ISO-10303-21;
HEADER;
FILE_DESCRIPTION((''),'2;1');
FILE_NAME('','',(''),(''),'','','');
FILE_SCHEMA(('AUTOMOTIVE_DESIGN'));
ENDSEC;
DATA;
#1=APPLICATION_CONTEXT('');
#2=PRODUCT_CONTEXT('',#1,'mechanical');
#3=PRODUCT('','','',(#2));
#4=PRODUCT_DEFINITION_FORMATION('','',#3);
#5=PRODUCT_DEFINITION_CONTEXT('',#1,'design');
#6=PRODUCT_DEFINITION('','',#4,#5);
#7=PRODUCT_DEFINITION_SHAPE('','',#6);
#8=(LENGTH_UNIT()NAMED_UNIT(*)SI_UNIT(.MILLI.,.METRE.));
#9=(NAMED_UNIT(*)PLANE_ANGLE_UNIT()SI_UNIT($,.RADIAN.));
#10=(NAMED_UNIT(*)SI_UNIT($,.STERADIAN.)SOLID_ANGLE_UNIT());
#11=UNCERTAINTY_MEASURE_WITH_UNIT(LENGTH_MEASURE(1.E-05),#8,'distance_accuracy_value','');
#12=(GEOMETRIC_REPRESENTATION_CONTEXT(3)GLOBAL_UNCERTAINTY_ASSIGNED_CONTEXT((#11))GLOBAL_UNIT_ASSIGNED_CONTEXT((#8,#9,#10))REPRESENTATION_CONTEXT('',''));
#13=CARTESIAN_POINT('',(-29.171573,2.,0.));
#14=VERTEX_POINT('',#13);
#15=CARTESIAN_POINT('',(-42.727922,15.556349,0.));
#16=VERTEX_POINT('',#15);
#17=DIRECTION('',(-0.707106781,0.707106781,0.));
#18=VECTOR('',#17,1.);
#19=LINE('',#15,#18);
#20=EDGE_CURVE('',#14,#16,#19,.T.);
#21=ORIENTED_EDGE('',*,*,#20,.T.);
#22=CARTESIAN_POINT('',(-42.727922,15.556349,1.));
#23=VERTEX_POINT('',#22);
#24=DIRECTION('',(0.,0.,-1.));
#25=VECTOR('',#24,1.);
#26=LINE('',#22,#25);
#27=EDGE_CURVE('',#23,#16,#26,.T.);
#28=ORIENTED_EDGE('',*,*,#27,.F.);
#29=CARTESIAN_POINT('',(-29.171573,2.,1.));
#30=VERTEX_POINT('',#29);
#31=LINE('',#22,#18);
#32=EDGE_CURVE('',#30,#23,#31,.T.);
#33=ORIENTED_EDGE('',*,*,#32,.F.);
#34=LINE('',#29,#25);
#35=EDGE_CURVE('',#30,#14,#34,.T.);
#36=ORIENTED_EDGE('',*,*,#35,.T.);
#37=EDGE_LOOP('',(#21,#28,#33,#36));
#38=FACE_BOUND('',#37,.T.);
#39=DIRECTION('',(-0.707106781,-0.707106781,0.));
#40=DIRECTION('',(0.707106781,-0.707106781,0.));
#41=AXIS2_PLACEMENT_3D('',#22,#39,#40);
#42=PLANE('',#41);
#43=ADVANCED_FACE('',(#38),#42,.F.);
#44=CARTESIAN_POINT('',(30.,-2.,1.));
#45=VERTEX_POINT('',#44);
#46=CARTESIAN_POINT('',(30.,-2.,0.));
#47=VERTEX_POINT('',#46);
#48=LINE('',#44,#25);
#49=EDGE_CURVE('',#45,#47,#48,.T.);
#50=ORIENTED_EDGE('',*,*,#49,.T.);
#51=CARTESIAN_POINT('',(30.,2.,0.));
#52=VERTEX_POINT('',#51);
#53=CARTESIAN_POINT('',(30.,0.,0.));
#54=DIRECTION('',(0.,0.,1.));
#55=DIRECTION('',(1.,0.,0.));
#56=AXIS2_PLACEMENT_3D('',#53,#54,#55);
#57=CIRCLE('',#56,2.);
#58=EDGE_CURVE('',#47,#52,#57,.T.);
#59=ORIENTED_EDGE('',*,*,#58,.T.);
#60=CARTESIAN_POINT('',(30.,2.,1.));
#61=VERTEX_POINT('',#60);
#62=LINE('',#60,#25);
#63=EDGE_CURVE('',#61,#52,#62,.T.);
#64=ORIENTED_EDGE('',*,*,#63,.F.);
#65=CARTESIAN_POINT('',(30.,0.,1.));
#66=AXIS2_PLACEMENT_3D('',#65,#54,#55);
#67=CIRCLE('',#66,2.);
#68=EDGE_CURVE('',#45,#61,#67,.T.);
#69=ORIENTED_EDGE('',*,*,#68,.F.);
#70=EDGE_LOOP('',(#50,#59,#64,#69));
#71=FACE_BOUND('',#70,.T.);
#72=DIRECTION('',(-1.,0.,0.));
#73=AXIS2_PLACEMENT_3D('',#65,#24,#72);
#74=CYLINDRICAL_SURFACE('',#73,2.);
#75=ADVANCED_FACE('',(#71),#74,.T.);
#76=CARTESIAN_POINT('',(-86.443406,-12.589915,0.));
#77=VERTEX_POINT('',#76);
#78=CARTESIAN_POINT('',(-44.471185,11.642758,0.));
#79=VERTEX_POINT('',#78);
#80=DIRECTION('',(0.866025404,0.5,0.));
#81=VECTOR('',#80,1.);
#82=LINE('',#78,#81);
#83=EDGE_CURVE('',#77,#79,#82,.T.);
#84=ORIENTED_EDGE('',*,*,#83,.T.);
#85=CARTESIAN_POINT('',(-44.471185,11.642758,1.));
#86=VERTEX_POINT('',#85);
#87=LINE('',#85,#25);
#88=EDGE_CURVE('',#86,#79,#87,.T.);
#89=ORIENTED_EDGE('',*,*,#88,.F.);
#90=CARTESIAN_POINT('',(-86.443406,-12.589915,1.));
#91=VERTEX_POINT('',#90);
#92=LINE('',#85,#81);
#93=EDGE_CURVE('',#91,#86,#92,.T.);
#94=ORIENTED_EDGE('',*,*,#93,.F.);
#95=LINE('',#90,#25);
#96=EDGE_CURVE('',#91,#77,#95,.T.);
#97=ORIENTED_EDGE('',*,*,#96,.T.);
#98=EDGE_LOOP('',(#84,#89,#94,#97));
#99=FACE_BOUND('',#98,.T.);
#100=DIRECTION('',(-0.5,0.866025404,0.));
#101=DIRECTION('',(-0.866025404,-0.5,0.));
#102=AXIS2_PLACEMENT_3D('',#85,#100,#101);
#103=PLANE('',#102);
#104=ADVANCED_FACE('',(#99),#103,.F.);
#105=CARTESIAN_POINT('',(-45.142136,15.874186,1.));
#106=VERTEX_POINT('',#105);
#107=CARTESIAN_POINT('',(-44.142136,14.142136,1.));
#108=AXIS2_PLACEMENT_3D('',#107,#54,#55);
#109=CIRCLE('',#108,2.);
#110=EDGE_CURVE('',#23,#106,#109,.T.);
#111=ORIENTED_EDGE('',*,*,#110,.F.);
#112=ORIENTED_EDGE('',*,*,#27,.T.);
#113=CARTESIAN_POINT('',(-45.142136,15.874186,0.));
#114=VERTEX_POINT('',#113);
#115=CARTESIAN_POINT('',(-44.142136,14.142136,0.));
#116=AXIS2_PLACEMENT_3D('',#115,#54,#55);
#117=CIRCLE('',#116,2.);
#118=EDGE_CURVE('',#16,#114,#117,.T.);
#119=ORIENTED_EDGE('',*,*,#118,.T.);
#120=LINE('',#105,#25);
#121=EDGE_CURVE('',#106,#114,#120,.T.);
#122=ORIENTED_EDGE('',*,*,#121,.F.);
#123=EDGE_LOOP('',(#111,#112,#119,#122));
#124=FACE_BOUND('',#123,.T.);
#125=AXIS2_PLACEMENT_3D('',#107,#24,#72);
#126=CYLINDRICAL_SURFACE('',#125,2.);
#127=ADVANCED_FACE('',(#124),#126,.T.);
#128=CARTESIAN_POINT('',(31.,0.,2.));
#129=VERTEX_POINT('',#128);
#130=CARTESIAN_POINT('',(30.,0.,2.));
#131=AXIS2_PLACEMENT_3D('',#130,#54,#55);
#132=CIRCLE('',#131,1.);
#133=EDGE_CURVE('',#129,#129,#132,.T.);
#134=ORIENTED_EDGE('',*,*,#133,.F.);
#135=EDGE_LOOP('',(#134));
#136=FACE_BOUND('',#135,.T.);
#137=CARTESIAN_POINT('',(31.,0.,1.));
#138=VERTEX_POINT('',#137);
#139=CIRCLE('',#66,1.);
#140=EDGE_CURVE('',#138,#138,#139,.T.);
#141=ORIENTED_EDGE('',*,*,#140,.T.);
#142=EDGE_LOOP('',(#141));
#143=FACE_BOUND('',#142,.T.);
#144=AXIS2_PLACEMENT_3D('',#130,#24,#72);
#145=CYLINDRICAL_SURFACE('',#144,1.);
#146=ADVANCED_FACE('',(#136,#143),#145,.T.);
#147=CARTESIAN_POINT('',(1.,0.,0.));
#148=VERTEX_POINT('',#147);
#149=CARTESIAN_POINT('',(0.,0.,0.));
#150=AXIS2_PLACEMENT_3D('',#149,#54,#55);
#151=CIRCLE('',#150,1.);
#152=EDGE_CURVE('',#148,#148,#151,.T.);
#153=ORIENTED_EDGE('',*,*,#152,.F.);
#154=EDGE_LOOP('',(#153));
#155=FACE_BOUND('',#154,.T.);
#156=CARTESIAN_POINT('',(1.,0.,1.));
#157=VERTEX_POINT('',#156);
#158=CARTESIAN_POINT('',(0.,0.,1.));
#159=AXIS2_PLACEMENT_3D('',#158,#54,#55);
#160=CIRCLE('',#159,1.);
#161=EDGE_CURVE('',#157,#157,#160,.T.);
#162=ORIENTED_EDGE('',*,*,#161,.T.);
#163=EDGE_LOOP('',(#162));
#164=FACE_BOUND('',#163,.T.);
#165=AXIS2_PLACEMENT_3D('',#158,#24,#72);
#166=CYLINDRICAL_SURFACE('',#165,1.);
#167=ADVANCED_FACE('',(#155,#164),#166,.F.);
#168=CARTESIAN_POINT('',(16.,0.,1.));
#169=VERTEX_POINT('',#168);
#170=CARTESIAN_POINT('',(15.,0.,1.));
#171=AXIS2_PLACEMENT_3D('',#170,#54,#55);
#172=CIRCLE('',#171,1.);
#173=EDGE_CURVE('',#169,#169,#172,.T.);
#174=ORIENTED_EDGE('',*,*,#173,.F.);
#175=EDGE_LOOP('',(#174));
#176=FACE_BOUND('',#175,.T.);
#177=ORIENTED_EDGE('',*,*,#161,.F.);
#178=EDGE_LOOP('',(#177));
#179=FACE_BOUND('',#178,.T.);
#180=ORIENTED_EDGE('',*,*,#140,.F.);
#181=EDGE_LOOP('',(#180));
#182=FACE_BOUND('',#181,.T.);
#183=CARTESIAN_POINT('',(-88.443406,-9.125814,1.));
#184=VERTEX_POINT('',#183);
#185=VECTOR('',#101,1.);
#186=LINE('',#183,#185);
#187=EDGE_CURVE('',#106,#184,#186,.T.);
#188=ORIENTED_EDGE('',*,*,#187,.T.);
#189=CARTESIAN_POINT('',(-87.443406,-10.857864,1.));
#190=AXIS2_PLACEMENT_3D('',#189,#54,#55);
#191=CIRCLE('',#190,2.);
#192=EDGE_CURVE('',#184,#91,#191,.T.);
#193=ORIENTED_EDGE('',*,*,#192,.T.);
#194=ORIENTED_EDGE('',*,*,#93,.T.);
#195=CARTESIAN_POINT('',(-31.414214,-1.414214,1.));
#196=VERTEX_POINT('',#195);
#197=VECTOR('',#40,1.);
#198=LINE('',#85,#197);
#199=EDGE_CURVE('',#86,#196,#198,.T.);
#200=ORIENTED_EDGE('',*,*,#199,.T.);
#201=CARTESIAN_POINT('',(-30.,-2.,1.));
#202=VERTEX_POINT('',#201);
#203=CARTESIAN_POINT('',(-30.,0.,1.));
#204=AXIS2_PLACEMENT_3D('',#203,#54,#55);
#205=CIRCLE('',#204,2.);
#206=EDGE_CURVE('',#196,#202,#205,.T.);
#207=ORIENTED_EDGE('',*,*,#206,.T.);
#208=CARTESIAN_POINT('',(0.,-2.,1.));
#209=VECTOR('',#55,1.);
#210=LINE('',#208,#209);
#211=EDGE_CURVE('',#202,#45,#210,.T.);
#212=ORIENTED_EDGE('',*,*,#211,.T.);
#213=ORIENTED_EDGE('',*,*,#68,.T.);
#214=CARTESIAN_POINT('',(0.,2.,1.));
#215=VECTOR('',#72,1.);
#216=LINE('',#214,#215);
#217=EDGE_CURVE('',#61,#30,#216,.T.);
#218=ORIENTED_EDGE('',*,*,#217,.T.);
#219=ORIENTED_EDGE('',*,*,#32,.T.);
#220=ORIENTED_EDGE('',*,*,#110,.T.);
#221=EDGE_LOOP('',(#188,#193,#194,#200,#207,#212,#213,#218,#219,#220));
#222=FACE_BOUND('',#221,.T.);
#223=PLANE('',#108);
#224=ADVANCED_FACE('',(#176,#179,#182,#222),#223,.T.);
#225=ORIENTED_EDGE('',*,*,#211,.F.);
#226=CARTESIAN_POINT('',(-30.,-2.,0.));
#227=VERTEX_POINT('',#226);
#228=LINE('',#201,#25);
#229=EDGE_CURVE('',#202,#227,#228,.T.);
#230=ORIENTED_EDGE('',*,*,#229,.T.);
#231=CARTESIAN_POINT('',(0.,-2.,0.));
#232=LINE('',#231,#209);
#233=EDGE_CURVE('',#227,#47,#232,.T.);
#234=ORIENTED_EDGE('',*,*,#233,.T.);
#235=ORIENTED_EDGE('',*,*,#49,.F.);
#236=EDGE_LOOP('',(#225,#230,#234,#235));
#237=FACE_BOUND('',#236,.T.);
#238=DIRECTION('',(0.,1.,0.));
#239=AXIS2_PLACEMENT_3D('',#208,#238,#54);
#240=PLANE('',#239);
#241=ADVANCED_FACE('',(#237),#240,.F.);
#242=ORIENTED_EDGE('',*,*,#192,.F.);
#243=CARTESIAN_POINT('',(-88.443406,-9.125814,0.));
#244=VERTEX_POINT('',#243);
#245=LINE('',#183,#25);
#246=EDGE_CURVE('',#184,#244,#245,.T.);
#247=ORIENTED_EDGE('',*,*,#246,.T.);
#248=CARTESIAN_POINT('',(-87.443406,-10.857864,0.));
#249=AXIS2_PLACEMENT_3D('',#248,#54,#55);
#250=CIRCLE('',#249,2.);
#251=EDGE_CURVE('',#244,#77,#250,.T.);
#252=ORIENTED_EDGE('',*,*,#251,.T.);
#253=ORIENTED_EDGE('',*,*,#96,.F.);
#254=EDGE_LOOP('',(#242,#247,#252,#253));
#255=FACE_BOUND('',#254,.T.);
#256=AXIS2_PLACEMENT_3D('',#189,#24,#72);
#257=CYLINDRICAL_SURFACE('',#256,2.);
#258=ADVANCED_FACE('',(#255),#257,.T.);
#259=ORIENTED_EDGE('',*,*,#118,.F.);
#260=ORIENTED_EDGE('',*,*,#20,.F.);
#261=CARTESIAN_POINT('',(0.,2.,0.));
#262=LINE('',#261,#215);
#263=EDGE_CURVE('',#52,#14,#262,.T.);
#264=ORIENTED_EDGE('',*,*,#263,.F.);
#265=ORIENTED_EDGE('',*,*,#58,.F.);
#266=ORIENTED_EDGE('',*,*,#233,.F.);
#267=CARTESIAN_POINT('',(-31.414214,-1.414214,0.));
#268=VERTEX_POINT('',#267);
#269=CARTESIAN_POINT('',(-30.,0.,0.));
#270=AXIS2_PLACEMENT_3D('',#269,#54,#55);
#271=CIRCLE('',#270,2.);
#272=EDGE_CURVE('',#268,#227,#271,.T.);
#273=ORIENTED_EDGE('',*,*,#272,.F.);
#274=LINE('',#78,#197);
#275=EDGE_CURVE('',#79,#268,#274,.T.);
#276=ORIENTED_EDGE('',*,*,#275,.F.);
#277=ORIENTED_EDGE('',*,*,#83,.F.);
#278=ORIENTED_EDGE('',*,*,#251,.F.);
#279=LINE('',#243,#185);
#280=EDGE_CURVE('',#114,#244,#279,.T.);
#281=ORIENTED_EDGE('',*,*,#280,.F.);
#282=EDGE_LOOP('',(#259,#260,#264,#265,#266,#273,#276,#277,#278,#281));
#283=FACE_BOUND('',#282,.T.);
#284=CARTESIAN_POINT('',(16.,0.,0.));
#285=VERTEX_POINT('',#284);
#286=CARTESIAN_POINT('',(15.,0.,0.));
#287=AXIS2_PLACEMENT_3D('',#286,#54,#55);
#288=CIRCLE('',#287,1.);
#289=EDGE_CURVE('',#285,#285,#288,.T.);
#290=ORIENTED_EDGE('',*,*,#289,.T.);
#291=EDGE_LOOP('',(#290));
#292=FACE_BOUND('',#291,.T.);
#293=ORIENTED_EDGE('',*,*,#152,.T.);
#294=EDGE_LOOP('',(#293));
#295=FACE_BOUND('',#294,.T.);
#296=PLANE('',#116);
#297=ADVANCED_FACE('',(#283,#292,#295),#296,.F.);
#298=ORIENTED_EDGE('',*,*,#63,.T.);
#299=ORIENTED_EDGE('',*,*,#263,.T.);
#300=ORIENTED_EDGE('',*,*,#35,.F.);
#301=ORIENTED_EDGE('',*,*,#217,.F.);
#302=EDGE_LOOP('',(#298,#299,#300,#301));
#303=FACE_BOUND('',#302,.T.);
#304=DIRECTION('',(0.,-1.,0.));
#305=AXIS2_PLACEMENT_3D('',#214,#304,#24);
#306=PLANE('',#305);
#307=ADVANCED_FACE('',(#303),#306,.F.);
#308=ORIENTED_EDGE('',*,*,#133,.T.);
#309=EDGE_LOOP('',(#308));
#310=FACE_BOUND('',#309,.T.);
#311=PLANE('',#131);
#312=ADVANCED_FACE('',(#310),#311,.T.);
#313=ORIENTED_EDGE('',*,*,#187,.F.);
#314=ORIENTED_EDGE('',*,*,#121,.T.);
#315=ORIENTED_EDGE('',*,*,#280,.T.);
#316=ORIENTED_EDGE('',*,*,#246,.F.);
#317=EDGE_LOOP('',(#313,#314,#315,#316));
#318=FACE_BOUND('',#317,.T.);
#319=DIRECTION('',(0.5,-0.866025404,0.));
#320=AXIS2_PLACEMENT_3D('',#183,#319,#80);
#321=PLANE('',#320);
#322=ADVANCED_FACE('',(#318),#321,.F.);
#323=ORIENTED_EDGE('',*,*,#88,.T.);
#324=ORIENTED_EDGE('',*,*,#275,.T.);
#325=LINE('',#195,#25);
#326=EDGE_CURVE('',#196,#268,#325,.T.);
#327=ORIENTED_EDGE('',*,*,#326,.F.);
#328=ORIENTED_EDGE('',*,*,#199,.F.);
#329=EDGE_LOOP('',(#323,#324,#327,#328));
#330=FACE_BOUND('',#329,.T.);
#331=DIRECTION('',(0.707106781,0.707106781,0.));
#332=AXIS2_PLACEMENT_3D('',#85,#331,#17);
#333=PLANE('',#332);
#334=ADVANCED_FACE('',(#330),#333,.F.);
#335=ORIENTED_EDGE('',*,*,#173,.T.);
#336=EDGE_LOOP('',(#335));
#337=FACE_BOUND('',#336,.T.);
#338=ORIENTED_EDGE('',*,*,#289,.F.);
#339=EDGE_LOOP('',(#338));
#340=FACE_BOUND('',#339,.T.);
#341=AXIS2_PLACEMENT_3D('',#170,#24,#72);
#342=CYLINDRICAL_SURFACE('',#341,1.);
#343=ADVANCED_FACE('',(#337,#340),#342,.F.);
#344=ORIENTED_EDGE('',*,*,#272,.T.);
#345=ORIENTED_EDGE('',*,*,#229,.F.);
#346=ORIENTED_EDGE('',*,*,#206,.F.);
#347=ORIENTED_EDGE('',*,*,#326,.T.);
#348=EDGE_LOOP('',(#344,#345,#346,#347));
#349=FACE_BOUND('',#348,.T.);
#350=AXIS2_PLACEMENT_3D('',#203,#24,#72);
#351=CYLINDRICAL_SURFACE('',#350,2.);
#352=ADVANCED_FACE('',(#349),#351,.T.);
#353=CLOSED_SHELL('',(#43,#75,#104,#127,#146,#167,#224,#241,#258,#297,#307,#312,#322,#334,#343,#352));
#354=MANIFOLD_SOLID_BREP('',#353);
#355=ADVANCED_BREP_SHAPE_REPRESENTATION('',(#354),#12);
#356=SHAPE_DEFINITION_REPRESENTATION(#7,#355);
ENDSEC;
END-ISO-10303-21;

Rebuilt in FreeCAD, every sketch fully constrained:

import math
import FreeCAD as App
import Part
import Sketcher
from FreeCAD import Vector
Q = App.Units.Quantity

doc = App.newDocument("Part")
body = doc.addObject("PartDesign::Body", "Body")

# Sketch on XY plane
sketch1 = body.newObject("Sketcher::SketchObject", "Sketch")
sketch1.AttachmentSupport = (doc.getObject("XY_Plane"), [""])
sketch1.MapMode = "FlatFace"
sketch1.addGeometry([
    Part.ArcOfCircle(Part.Circle(Vector(30, 0, 0), Vector(0, 0, 1), 2), math.radians(-90), math.radians(90)),  # 0
    Part.LineSegment(Vector(30, 2, 0), Vector(-29.2, 2, 0)),  # 1
    Part.LineSegment(Vector(-29.2, 2, 0), Vector(-42.7, 15.6, 0)),  # 2
    Part.ArcOfCircle(Part.Circle(Vector(-44.1, 14.1, 0), Vector(0, 0, 1), 2), math.radians(45), math.radians(120)),  # 3
    Part.LineSegment(Vector(-45.1, 15.9, 0), Vector(-88.4, -9.1, 0)),  # 4
    Part.ArcOfCircle(Part.Circle(Vector(-87.4, -10.9, 0), Vector(0, 0, 1), 2), math.radians(120), math.radians(300)),  # 5
    Part.LineSegment(Vector(-86.4, -12.6, 0), Vector(-44.5, 11.6, 0)),  # 6
    Part.LineSegment(Vector(-44.5, 11.6, 0), Vector(-31.4, -1.4, 0)),  # 7
    Part.ArcOfCircle(Part.Circle(Vector(-30, 0, 0), Vector(0, 0, 1), 2), math.radians(-135), math.radians(-90)),  # 8
    Part.LineSegment(Vector(-30, -2, 0), Vector(30, -2, 0)),  # 9
    Part.Circle(Vector(15, 0, 0), Vector(0, 0, 1), 1),  # 10
    Part.Circle(Vector(0, 0, 0), Vector(0, 0, 1), 1),  # 11
], False)
sketch1.addConstraint([
    Sketcher.Constraint("Tangent", 0, 2, 1, 1),
    Sketcher.Constraint("Coincident", 1, 2, 2, 1),
    Sketcher.Constraint("Tangent", 2, 2, 3, 1),
    Sketcher.Constraint("Tangent", 3, 2, 4, 1),
    Sketcher.Constraint("Tangent", 4, 2, 5, 1),
    Sketcher.Constraint("Tangent", 5, 2, 6, 1),
    Sketcher.Constraint("Coincident", 6, 2, 7, 1),
    Sketcher.Constraint("Tangent", 7, 2, 8, 1),
    Sketcher.Constraint("Tangent", 8, 2, 9, 1),
    Sketcher.Constraint("Tangent", 9, 2, 0, 1),
    Sketcher.Constraint("Horizontal", 1),
    Sketcher.Constraint("Horizontal", 9),
    Sketcher.Constraint("Coincident", 11, 3, -1, 1),
    Sketcher.Constraint("Equal", 0, 3),
    Sketcher.Constraint("Equal", 3, 5),
    Sketcher.Constraint("Equal", 5, 8),
    Sketcher.Constraint("Equal", 10, 11),
    Sketcher.Constraint("Symmetric", 0, 3, 8, 3, -1, 1),
    Sketcher.Constraint("PointOnObject", 10, 3, -1),
    Sketcher.Constraint("Parallel", 4, 6),
    Sketcher.Constraint("Parallel", 2, 7),
    Sketcher.Constraint("Diameter", 10, 2.0),
    Sketcher.Constraint("Radius", 0, 2.0),
    Sketcher.Constraint("DistanceX", 9, 1, 9, 2, 60.0),
    Sketcher.Constraint("Angle", 2, Q("135 deg")),
    Sketcher.Constraint("Angle", 4, Q("-150 deg")),
    Sketcher.Constraint("Distance", 4, 50.0),
    Sketcher.Constraint("DistanceX", -1, 1, 10, 3, 15.0),
    Sketcher.Constraint("DistanceX", 1, 2, 1, 1, 59.171573),
    Sketcher.Constraint("DistanceY", -1, 1, 2, 2, 15.556349),
])
pad1 = body.newObject("PartDesign::Pad", "Pad")
pad1.Profile = sketch1
pad1.Length = 1

# Sketch on XY plane
sketch2 = body.newObject("Sketcher::SketchObject", "Sketch001")
sketch2.AttachmentSupport = (doc.getObject("XY_Plane"), [""])
sketch2.MapMode = "FlatFace"
sketch2.AttachmentOffset = App.Placement(Vector(0, 0, 1), App.Rotation())
sketch2.addGeometry(Part.Circle(Vector(30, 0, 0), Vector(0, 0, 1), 1), False)
sketch2.addConstraint([
    Sketcher.Constraint("PointOnObject", 0, 3, -1),
    Sketcher.Constraint("Diameter", 0, 2.0),
    Sketcher.Constraint("DistanceX", -1, 1, 0, 3, 30.0),
])
pad2 = body.newObject("PartDesign::Pad", "Pad001")
pad2.Profile = sketch2
pad2.Length = 1

doc.recompute()
